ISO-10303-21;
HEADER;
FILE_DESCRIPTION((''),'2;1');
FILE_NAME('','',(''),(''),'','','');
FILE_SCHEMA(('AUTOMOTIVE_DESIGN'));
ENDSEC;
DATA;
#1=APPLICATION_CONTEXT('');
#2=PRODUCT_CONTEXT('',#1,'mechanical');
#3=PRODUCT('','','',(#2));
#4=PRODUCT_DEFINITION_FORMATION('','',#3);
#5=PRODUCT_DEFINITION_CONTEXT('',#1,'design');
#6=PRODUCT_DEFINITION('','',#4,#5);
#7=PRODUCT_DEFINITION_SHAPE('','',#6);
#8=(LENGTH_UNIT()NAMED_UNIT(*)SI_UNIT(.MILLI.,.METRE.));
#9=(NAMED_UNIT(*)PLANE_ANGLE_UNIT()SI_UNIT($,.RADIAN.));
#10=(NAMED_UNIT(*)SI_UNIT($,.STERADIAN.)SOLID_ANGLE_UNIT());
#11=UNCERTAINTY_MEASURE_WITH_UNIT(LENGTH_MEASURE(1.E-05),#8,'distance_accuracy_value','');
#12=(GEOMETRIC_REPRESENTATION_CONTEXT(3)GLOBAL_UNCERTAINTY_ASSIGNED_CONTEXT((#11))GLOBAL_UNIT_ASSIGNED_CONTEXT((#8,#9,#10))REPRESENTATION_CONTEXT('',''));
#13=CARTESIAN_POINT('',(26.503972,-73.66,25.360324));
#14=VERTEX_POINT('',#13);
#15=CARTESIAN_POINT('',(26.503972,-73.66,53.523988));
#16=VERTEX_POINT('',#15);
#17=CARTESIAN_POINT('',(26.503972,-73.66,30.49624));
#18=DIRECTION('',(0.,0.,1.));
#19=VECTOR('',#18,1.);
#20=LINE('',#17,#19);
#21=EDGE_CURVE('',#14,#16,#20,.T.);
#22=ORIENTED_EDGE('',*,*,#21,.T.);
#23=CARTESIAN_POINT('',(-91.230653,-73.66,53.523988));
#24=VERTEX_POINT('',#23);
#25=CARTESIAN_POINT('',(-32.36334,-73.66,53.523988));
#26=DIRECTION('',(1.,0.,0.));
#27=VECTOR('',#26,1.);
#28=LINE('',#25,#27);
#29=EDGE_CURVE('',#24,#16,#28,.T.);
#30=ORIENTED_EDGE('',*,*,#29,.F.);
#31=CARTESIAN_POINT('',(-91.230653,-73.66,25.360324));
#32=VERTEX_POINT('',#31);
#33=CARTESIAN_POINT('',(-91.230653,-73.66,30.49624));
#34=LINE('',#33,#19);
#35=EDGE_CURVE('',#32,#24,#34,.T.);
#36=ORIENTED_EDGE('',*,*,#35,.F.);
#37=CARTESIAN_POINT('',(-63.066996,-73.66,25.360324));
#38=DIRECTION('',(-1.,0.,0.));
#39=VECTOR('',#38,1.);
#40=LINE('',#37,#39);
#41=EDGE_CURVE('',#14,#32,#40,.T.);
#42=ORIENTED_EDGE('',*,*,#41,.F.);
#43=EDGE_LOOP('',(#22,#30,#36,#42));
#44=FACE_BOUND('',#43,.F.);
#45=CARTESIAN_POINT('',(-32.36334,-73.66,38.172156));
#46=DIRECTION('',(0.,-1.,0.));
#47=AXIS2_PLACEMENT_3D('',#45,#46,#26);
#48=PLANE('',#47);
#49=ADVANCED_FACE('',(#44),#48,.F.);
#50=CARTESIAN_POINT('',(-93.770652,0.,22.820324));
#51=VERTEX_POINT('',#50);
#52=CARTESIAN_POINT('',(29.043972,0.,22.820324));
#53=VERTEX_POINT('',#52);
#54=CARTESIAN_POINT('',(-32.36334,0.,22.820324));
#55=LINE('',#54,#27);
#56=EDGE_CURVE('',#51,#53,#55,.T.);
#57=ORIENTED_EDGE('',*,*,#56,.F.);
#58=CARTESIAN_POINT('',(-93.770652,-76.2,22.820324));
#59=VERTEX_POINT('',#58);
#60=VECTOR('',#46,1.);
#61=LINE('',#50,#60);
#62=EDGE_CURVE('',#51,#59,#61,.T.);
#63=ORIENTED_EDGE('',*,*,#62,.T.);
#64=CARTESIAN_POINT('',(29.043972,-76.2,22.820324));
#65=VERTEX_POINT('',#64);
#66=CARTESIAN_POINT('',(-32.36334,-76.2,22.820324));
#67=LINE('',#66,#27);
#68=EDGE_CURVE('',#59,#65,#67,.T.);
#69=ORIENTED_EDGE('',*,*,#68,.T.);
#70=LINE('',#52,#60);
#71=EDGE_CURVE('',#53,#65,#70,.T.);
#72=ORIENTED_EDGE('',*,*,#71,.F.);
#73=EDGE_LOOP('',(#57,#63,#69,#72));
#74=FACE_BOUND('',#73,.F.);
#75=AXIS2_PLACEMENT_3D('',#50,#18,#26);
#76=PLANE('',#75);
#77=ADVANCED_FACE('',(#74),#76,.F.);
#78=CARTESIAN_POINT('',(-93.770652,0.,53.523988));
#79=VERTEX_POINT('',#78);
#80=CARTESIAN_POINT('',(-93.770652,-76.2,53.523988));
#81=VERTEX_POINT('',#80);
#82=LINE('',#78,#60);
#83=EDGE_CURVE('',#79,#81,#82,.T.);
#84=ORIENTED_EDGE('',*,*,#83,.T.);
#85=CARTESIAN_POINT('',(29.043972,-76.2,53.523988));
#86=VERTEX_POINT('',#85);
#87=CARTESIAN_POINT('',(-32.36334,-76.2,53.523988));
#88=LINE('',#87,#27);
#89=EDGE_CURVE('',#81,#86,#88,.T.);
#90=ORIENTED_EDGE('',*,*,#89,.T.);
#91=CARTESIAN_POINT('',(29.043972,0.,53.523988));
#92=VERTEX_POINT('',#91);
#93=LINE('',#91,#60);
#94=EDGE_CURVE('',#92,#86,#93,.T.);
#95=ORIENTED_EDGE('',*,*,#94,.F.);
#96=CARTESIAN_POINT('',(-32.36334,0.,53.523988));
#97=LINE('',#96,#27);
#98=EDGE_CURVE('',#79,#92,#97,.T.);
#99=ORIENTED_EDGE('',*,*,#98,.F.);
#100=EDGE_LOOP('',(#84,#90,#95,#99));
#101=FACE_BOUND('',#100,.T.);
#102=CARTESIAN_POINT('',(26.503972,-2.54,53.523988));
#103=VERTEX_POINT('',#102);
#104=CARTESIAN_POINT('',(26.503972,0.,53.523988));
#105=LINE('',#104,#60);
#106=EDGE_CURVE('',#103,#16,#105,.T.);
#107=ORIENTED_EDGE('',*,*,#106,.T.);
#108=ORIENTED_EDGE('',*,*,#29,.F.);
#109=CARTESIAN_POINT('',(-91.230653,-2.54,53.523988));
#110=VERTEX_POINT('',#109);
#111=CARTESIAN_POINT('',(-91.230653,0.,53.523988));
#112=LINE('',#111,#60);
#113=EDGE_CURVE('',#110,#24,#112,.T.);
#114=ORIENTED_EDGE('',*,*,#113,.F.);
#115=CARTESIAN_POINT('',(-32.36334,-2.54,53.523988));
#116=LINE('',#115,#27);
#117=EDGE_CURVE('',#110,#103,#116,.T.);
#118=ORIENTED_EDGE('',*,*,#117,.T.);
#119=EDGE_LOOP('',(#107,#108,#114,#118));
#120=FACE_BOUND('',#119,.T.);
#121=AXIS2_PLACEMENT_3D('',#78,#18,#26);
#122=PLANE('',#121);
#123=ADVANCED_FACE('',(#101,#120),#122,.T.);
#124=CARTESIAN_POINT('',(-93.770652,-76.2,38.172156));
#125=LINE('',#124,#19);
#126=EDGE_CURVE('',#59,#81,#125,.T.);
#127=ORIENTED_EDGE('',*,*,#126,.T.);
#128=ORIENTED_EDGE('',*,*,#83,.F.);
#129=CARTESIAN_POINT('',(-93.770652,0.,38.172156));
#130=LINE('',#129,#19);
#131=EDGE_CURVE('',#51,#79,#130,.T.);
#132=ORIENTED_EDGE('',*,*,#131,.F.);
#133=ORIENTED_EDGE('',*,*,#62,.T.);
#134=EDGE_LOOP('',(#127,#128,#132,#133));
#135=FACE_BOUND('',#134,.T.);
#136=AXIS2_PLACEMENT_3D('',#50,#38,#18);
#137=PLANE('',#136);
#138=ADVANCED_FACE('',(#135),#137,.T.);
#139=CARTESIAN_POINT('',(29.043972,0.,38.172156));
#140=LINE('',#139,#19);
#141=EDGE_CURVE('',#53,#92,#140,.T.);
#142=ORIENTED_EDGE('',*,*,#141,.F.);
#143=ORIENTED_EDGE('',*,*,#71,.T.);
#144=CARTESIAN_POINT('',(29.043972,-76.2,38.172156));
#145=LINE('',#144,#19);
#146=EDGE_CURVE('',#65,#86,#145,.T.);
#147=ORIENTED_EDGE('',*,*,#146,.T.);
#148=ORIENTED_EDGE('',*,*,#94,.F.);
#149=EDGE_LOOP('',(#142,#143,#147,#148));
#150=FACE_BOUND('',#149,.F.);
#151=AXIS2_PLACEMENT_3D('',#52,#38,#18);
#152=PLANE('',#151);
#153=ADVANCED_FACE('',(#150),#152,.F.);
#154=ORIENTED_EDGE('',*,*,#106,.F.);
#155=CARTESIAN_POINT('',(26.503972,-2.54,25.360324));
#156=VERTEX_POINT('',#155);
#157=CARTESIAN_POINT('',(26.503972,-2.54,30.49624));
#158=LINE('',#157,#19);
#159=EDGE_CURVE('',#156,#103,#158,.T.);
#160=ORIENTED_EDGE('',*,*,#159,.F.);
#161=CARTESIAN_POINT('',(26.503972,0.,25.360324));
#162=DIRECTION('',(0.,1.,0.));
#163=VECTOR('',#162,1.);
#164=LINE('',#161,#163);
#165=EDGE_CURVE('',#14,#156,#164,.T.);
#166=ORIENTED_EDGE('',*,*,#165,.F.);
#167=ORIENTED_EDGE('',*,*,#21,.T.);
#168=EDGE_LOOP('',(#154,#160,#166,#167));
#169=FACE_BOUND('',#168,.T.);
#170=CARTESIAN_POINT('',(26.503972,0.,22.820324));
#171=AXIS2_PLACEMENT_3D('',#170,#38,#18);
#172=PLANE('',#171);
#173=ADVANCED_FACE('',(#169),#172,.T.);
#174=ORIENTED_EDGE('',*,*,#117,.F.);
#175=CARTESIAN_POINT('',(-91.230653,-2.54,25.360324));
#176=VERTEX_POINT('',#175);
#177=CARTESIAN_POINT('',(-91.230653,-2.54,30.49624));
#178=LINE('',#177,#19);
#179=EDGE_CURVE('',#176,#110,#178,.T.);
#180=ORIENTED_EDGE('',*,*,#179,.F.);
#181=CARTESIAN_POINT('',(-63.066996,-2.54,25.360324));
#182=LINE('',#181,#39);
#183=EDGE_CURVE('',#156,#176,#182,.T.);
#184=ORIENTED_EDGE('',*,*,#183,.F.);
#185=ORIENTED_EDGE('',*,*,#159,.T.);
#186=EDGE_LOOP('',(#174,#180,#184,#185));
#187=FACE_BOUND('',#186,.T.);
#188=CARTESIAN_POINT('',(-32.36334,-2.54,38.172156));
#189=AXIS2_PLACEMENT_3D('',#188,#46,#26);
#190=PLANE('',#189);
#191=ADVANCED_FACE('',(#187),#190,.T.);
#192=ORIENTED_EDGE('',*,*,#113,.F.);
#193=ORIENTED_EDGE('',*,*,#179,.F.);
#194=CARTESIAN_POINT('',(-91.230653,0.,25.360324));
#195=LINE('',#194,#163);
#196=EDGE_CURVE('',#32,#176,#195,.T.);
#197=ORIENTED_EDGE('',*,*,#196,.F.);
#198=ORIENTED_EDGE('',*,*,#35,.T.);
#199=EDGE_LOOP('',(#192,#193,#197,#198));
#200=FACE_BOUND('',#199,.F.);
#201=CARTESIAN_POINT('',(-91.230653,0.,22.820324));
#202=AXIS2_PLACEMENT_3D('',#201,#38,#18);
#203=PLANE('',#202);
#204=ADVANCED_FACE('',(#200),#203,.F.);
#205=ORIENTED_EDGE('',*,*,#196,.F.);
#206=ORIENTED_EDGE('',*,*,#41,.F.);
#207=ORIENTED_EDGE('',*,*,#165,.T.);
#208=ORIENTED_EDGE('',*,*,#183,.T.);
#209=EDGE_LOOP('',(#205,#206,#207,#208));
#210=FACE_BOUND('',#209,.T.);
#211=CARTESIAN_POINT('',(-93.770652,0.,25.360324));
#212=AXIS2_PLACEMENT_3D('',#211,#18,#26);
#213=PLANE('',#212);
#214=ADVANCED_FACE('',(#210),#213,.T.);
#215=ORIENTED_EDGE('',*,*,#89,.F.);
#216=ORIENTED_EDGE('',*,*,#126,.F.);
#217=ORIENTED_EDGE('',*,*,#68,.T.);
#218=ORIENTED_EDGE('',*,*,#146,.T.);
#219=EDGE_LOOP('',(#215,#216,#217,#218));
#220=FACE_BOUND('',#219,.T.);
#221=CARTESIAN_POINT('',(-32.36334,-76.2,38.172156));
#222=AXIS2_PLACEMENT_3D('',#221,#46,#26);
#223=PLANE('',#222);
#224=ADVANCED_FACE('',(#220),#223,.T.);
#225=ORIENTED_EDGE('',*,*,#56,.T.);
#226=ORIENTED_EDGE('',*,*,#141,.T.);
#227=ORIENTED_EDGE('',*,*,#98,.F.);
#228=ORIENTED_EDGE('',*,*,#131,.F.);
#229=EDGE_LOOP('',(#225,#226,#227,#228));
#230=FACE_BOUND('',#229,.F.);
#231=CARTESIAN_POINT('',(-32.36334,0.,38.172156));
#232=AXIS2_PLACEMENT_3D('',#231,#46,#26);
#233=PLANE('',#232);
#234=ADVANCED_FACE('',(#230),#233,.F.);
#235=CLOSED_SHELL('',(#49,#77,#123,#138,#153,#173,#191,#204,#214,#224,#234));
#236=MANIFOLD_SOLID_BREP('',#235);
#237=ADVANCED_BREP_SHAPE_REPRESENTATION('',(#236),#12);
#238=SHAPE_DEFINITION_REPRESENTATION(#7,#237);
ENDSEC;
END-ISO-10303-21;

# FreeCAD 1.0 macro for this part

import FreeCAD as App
import Part
import Sketcher
from FreeCAD import Vector
Q = App.Units.Quantity


def faces_at(feature, points):
    """Names of the faces that lie closest to the given points."""
    faces = feature.Shape.Faces
    near = lambda p: min(range(len(faces)), key=lambda i: faces[i].distToShape(Part.Vertex(*p))[0])
    return sorted({f"Face{near(p) + 1}" for p in points})


def add_polygon(sketch, points):
    """Adds a closed chain of lines whose ends are joined by coincident constraints."""
    first, n = sketch.GeometryCount, len(points)
    for a, b in zip(points, points[1:] + points[:1]):
        sketch.addGeometry(Part.LineSegment(App.Vector(*a, 0), App.Vector(*b, 0)), False)
    for i in range(n):
        sketch.addConstraint(Sketcher.Constraint("Coincident", first + i, 2, first + (i + 1) % n, 1))

doc = App.newDocument("Part")
body = doc.addObject("PartDesign::Body", "Body")

# Sketch on XZ plane
sketch1 = body.newObject("Sketcher::SketchObject", "Sketch")
sketch1.AttachmentSupport = (doc.getObject("XZ_Plane"), [""])
sketch1.MapMode = "FlatFace"
add_polygon(sketch1, [(-94, 54), (-94, 23), (29, 23), (29, 54)])  # lines 0-3
sketch1.addConstraint([
    Sketcher.Constraint("Vertical", 0),
    Sketcher.Constraint("Horizontal", 1),
    Sketcher.Constraint("Vertical", 2),
    Sketcher.Constraint("Horizontal", 3),
    Sketcher.Constraint("DistanceX", 1, 1, 1, 2, 122.814625),
    Sketcher.Constraint("DistanceY", 0, 2, 0, 1, 30.703664),
    Sketcher.Constraint("DistanceY", -1, 1, 2, 2, 53.523988),
    Sketcher.Constraint("DistanceX", 0, 2, -1, 1, 93.770652),
])
pad1 = body.newObject("PartDesign::Pad", "Pad")
pad1.Profile = sketch1
pad1.Length = Q("3 in")
doc.recompute()

thickness = body.newObject("PartDesign::Thickness", "Thickness")
thickness.Base = (pad1, faces_at(pad1, [(-32.363, -38.1, 53.524)]))
thickness.Value = Q("0.1 in")
thickness.Reversed = True
thickness.Join = "Arc"

doc.recompute()
